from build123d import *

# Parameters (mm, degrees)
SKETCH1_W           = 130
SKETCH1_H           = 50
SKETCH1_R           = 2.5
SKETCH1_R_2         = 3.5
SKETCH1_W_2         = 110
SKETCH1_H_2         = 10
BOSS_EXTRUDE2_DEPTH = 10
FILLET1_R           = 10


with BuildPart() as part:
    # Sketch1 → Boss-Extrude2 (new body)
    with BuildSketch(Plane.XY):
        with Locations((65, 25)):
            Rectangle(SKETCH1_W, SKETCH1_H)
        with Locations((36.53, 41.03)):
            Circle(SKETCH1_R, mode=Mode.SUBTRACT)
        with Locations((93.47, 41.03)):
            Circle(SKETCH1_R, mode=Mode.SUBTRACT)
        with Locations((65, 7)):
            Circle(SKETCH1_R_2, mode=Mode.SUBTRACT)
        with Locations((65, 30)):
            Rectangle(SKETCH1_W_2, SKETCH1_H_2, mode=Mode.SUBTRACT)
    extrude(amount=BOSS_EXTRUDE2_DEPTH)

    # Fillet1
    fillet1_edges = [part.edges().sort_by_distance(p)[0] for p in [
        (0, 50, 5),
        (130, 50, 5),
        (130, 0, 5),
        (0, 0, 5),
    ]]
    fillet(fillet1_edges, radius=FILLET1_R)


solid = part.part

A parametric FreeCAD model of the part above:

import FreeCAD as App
import Part
import Sketcher


def edges_at(feature, points):
    """Names of the edges that pass closest to the given points."""
    edges = feature.Shape.Edges
    near = lambda p: min(range(len(edges)), key=lambda i: edges[i].distToShape(Part.Vertex(*p))[0])
    return sorted({f"Edge{near(p) + 1}" for p in points})


def add_polygon(sketch, points):
    """Adds a closed chain of lines whose ends are joined by coincident constraints."""
    first, n = sketch.GeometryCount, len(points)
    for a, b in zip(points, points[1:] + points[:1]):
        sketch.addGeometry(Part.LineSegment(App.Vector(*a, 0), App.Vector(*b, 0)), False)
    for i in range(n):
        sketch.addConstraint(Sketcher.Constraint("Coincident", first + i, 2, first + (i + 1) % n, 1))

doc = App.newDocument("Part")
body = doc.addObject("PartDesign::Body", "Body")

# Sketch on XY plane
sketch1 = body.newObject("Sketcher::SketchObject", "Sketch")
sketch1.AttachmentSupport = (doc.getObject("XY_Plane"), [""])
sketch1.MapMode = "FlatFace"
add_polygon(sketch1, [(0, 50), (0, 0), (130, 0), (130, 50)])  # lines 0-3
sketch1.addGeometry(Part.Circle(App.Vector(65, 7, 0), App.Vector(0, 0, 1), 3.5), False)  # 4
sketch1.addGeometry(Part.Circle(App.Vector(36.5, 41, 0), App.Vector(0, 0, 1), 2.5), False)  # 5
add_polygon(sketch1, [(120, 25), (10, 25), (10, 35), (120, 35)])  # lines 6-9
sketch1.addGeometry(Part.Circle(App.Vector(93.5, 41, 0), App.Vector(0, 0, 1), 2.5), False)  # 10
sketch1.addConstraint([
    Sketcher.Constraint("Vertical", 0),
    Sketcher.Constraint("Horizontal", 1),
    Sketcher.Constraint("Vertical", 2),
    Sketcher.Constraint("Horizontal", 3),
    Sketcher.Constraint("Horizontal", 6),
    Sketcher.Constraint("Vertical", 7),
    Sketcher.Constraint("Horizontal", 8),
    Sketcher.Constraint("Vertical", 9),
    Sketcher.Constraint("Coincident", 0, 2, -1, 1),
    Sketcher.Constraint("Equal", 5, 10),
    Sketcher.Constraint("Horizontal", 5, 3, 10, 3),
    Sketcher.Constraint("Diameter", 4, 7.0),
    Sketcher.Constraint("Diameter", 5, 5.0),
    Sketcher.Constraint("DistanceX", 1, 1, 1, 2, 130.0),
    Sketcher.Constraint("DistanceX", 6, 2, 6, 1, 110.0),
    Sketcher.Constraint("DistanceY", 0, 2, 0, 1, 50.0),
    Sketcher.Constraint("DistanceY", 7, 1, 7, 2, 10.0),
    Sketcher.Constraint("DistanceX", -1, 1, 4, 3, 65.0),
    Sketcher.Constraint("DistanceY", -1, 1, 4, 3, 7.0),
    Sketcher.Constraint("DistanceX", -1, 1, 6, 2, 10.0),
    Sketcher.Constraint("DistanceY", -1, 1, 6, 2, 25.0),
    Sketcher.Constraint("DistanceX", -1, 1, 5, 3, 36.53),
    Sketcher.Constraint("DistanceY", -1, 1, 5, 3, 41.03),
    Sketcher.Constraint("DistanceX", -1, 1, 10, 3, 93.47),
])
pad1 = body.newObject("PartDesign::Pad", "Pad")
pad1.Profile = sketch1
pad1.Length = 10
doc.recompute()

fillet = body.newObject("PartDesign::Fillet", "Fillet")
fillet.Base = (pad1, edges_at(pad1, [
    (0, 50, 5),
    (130, 50, 5),
    (130, 0, 5),
    (0, 0, 5),
]))
fillet.Radius = 10

doc.recompute()
